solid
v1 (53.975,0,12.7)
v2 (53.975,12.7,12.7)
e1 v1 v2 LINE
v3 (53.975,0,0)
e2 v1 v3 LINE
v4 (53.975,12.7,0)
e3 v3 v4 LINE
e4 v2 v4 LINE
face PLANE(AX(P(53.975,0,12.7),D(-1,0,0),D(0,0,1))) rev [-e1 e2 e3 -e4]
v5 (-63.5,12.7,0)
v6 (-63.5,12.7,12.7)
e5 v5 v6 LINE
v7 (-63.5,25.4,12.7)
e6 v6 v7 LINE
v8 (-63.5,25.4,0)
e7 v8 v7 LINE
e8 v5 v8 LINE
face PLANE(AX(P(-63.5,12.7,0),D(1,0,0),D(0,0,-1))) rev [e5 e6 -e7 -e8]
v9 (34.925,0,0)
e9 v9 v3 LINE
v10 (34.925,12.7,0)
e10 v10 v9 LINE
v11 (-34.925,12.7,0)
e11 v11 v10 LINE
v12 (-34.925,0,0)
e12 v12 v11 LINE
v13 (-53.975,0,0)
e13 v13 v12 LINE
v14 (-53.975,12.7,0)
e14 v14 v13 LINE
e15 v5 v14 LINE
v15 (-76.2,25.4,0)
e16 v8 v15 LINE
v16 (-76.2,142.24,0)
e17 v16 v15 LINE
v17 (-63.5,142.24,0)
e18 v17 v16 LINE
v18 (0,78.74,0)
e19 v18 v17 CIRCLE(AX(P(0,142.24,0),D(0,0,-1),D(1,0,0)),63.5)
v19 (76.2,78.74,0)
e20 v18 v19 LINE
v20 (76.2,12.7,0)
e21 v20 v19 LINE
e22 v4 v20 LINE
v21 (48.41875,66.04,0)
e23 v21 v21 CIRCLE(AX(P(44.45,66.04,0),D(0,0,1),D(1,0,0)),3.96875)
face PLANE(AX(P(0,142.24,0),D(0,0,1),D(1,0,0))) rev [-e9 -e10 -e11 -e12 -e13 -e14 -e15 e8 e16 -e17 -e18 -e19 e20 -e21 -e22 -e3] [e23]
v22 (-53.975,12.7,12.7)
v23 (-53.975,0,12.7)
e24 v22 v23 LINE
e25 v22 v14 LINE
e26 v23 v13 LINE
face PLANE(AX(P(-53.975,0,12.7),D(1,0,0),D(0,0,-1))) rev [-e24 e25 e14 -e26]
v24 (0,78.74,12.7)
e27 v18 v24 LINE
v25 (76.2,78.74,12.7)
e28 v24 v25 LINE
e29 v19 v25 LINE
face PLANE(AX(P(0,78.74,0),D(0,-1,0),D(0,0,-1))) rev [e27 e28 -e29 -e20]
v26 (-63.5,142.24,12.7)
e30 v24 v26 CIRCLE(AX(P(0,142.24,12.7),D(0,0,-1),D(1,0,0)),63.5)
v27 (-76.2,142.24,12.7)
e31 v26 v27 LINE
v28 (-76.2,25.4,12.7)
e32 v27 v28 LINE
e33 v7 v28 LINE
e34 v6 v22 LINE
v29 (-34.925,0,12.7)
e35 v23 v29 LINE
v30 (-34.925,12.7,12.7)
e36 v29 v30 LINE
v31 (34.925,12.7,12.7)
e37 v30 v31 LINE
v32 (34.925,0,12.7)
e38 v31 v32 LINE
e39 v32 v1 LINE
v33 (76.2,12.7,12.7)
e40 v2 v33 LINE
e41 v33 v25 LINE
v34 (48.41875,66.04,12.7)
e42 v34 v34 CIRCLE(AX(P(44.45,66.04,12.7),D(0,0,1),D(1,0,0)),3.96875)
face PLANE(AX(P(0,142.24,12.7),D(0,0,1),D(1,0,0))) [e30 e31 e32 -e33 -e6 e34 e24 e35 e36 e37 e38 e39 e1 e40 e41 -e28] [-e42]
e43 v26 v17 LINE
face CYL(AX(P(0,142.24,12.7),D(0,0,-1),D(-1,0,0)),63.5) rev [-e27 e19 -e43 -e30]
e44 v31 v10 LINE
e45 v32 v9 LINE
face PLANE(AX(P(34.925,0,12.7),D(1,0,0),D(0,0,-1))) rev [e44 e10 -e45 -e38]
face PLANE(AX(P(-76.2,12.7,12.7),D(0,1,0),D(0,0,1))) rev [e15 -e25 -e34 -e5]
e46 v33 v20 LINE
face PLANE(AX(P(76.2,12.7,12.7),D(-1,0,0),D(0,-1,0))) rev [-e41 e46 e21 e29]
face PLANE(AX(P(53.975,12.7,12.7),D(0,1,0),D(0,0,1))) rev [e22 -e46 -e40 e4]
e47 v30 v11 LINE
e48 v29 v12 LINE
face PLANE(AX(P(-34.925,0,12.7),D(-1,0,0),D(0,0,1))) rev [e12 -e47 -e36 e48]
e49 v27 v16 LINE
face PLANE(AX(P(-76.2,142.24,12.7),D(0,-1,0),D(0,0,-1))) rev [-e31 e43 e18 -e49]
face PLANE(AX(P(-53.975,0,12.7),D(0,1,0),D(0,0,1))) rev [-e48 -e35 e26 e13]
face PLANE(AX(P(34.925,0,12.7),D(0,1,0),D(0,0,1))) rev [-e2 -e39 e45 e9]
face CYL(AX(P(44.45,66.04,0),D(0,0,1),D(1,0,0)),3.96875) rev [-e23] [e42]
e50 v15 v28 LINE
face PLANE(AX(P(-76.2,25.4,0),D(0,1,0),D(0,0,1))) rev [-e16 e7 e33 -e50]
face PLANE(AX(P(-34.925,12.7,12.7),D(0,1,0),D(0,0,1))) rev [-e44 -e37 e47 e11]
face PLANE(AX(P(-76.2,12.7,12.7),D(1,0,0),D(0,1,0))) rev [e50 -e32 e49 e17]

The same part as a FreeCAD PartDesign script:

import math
import FreeCAD as App
import Part
import Sketcher
from FreeCAD import Vector
Q = App.Units.Quantity

doc = App.newDocument("Part")
params = doc.addObject("Spreadsheet::Sheet", "Params")
for row, (alias, value) in enumerate([
    ("sketch1_radius", "2.5 in"),
    ("sketch1_width", "0.5 in"),
    ("sketch1_height", "5.1 in"),
    ("sketch1_width2", "0.75 in"),
    ("sketch1_width3", "2.75 in"),
    ("pad1_length", "0.5 in"),
    ("sketch2_diameter", "0.3125 in"),
    ("sketch3_width", "0.5 in"),
], start=1):
    params.set(f"A{row}", alias)
    params.set(f"B{row}", "=" + value)
    params.setAlias(f"B{row}", alias)

body = doc.addObject("PartDesign::Body", "Body")

# Sketch on XY plane
sketch1 = body.newObject("Sketcher::SketchObject", "Sketch")
sketch1.AttachmentSupport = (doc.getObject("XY_Plane"), [""])
sketch1.MapMode = "FlatFace"
sketch1.addGeometry(Part.LineSegment(Vector(-76, 13, 0), Vector(-54, 13, 0)), False)
sketch1.addGeometry(Part.LineSegment(Vector(-54, 13, 0), Vector(-54, 0, 0)), False)
sketch1.addGeometry(Part.LineSegment(Vector(-54, 0, 0), Vector(-35, 0, 0)), False)
sketch1.addGeometry(Part.LineSegment(Vector(-35, 0, 0), Vector(-35, 13, 0)), False)
sketch1.addGeometry(Part.LineSegment(Vector(-35, 13, 0), Vector(35, 13, 0)), False)
sketch1.addGeometry(Part.LineSegment(Vector(35, 13, 0), Vector(35, 0, 0)), False)
sketch1.addGeometry(Part.LineSegment(Vector(35, 0, 0), Vector(54, 0, 0)), False)
sketch1.addGeometry(Part.LineSegment(Vector(54, 0, 0), Vector(54, 13, 0)), False)
sketch1.addGeometry(Part.LineSegment(Vector(54, 13, 0), Vector(76, 13, 0)), False)
sketch1.addGeometry(Part.LineSegment(Vector(76, 13, 0), Vector(76, 142, 0)), False)
sketch1.addGeometry(Part.LineSegment(Vector(76, 142, 0), Vector(64, 142, 0)), False)
sketch1.addGeometry(Part.ArcOfCircle(Part.Circle(Vector(0, 142, 0), Vector(0, 0, 1), 64), math.radians(180), math.radians(360)), False)
sketch1.addGeometry(Part.LineSegment(Vector(-64, 142, 0), Vector(-76, 142, 0)), False)
sketch1.addGeometry(Part.LineSegment(Vector(-76, 142, 0), Vector(-76, 13, 0)), False)
sketch1.addConstraint(Sketcher.Constraint("Coincident", 0, 2, 1, 1))
sketch1.addConstraint(Sketcher.Constraint("Coincident", 1, 2, 2, 1))
sketch1.addConstraint(Sketcher.Constraint("Coincident", 2, 2, 3, 1))
sketch1.addConstraint(Sketcher.Constraint("Coincident", 3, 2, 4, 1))
sketch1.addConstraint(Sketcher.Constraint("Coincident", 4, 2, 5, 1))
sketch1.addConstraint(Sketcher.Constraint("Coincident", 5, 2, 6, 1))
sketch1.addConstraint(Sketcher.Constraint("Coincident", 6, 2, 7, 1))
sketch1.addConstraint(Sketcher.Constraint("Coincident", 7, 2, 8, 1))
sketch1.addConstraint(Sketcher.Constraint("Coincident", 8, 2, 9, 1))
sketch1.addConstraint(Sketcher.Constraint("Coincident", 9, 2, 10, 1))
sketch1.addConstraint(Sketcher.Constraint("Coincident", 10, 2, 11, 2))
sketch1.addConstraint(Sketcher.Constraint("Coincident", 11, 1, 12, 1))
sketch1.addConstraint(Sketcher.Constraint("Coincident", 12, 2, 13, 1))
sketch1.addConstraint(Sketcher.Constraint("Coincident", 13, 2, 0, 1))
sketch1.addConstraint(Sketcher.Constraint("Horizontal", 0))
sketch1.addConstraint(Sketcher.Constraint("Vertical", 1))
sketch1.addConstraint(Sketcher.Constraint("Horizontal", 2))
sketch1.addConstraint(Sketcher.Constraint("Vertical", 3))
sketch1.addConstraint(Sketcher.Constraint("Horizontal", 4))
sketch1.addConstraint(Sketcher.Constraint("Vertical", 5))
sketch1.addConstraint(Sketcher.Constraint("Horizontal", 6))
sketch1.addConstraint(Sketcher.Constraint("Vertical", 7))
sketch1.addConstraint(Sketcher.Constraint("Horizontal", 8))
sketch1.addConstraint(Sketcher.Constraint("Vertical", 9))
sketch1.addConstraint(Sketcher.Constraint("Horizontal", 10))
sketch1.addConstraint(Sketcher.Constraint("Horizontal", 12))
sketch1.addConstraint(Sketcher.Constraint("Vertical", 13))
sketch1.addConstraint(Sketcher.Constraint("Symmetric", 2, 2, 5, 2, -1, 1))
sketch1.addConstraint(Sketcher.Constraint("Symmetric", 1, 2, 6, 2, -2))
sketch1.addConstraint(Sketcher.Constraint("Symmetric", 10, 2, 11, 1, -2))
sketch1.addConstraint(Sketcher.Constraint("Symmetric", 8, 2, 13, 2, -2))
sketch1.addConstraint(Sketcher.Constraint("Horizontal", 0, 2, 3, 2))
sketch1.addConstraint(Sketcher.Constraint("Horizontal", 11, 3, 9, 2))
sketch1.addConstraint(Sketcher.Constraint("Equal", 12, 1))
sketch1.addConstraint(Sketcher.Constraint("Radius", 11, Q("2.5 in")))
sketch1.addConstraint(Sketcher.Constraint("DistanceX", 10, 2, 10, 1, Q("0.5 in")))
sketch1.addConstraint(Sketcher.Constraint("DistanceY", 9, 1, 9, 2, Q("5.1 in")))
sketch1.addConstraint(Sketcher.Constraint("DistanceX", 2, 1, 2, 2, Q("0.75 in")))
sketch1.addConstraint(Sketcher.Constraint("DistanceX", 4, 1, 4, 2, Q("2.75 in")))
sketch1.setExpression("Constraints[34]", "Params.sketch1_radius")
sketch1.setExpression("Constraints[35]", "Params.sketch1_width")
sketch1.setExpression("Constraints[36]", "Params.sketch1_height")
sketch1.setExpression("Constraints[37]", "Params.sketch1_width2")
sketch1.setExpression("Constraints[38]", "Params.sketch1_width3")
pad1 = body.newObject("PartDesign::Pad", "Pad")
pad1.Profile = sketch1
pad1.setExpression("Length", "Params.pad1_length")

# Sketch on XY plane
sketch2 = body.newObject("Sketcher::SketchObject", "Sketch001")
sketch2.AttachmentSupport = (doc.getObject("XY_Plane"), [""])
sketch2.MapMode = "FlatFace"
sketch2.AttachmentOffset = App.Placement(Vector(0, 0, 0.5 * 25.4), App.Rotation())
sketch2.addGeometry(Part.Circle(Vector(44.5, 66, 0), Vector(0, 0, 1), 4), False)
sketch2.addConstraint(Sketcher.Constraint("Diameter", 0, Q("0.3125 in")))
sketch2.addConstraint(Sketcher.Constraint("DistanceY", -1, 1, 0, 3, Q("2.6 in")))
sketch2.addConstraint(Sketcher.Constraint("DistanceX", -1, 1, 0, 3, Q("1.75 in")))
sketch2.setExpression("Constraints[0]", "Params.sketch2_diameter")
pocket1 = body.newObject("PartDesign::Pocket", "Pocket")
pocket1.Profile = sketch2
pocket1.Type = "ThroughAll"

# Sketch on XY plane
sketch3 = body.newObject("Sketcher::SketchObject", "Sketch002")
sketch3.AttachmentSupport = (doc.getObject("XY_Plane"), [""])
sketch3.MapMode = "FlatFace"
sketch3.AttachmentOffset = App.Placement(Vector(0, 0, 0.5 * 25.4), App.Rotation())
sketch3.addGeometry(Part.LineSegment(Vector(-76, 25, 0), Vector(-76, 13, 0)), False)
sketch3.addGeometry(Part.LineSegment(Vector(-76, 13, 0), Vector(-64, 13, 0)), False)
sketch3.addGeometry(Part.LineSegment(Vector(-64, 13, 0), Vector(-64, 25, 0)), False)
sketch3.addGeometry(Part.LineSegment(Vector(-64, 25, 0), Vector(-76, 25, 0)), False)
sketch3.addConstraint(Sketcher.Constraint("Coincident", 0, 2, 1, 1))
sketch3.addConstraint(Sketcher.Constraint("Coincident", 1, 2, 2, 1))
sketch3.addConstraint(Sketcher.Constraint("Coincident", 2, 2, 3, 1))
sketch3.addConstraint(Sketcher.Constraint("Coincident", 3, 2, 0, 1))
sketch3.addConstraint(Sketcher.Constraint("Vertical", 0))
sketch3.addConstraint(Sketcher.Constraint("Horizontal", 1))
sketch3.addConstraint(Sketcher.Constraint("Vertical", 2))
sketch3.addConstraint(Sketcher.Constraint("Horizontal", 3))
sketch3.addConstraint(Sketcher.Constraint("Equal", 3, 0))
sketch3.addConstraint(Sketcher.Constraint("DistanceX", 1, 1, 1, 2, Q("0.5 in")))
sketch3.addConstraint(Sketcher.Constraint("DistanceX", 0, 2, -1, 1, Q("3 in")))
sketch3.addConstraint(Sketcher.Constraint("DistanceY", -1, 1, 2, 2, Q("1 in")))
sketch3.setExpression("Constraints[9]", "Params.sketch3_width")
pocket2 = body.newObject("PartDesign::Pocket", "Pocket001")
pocket2.Profile = sketch3
pocket2.Type = "ThroughAll"

# Sketch on XY plane
sketch4 = body.newObject("Sketcher::SketchObject", "Sketch003")
sketch4.AttachmentSupport = (doc.getObject("XY_Plane"), [""])
sketch4.MapMode = "FlatFace"
sketch4.AttachmentOffset = App.Placement(Vector(0, 0, 0.5 * 25.4), App.Rotation())
sketch4.addGeometry(Part.LineSegment(Vector(0, 154, 0), Vector(0, 79, 0)), False)
sketch4.addGeometry(Part.LineSegment(Vector(0, 79, 0), Vector(106, 79, 0)), False)
sketch4.addGeometry(Part.LineSegment(Vector(106, 79, 0), Vector(106, 154, 0)), False)
sketch4.addGeometry(Part.LineSegment(Vector(106, 154, 0), Vector(0, 154, 0)), False)
sketch4.addConstraint(Sketcher.Constraint("Coincident", 0, 2, 1, 1))
sketch4.addConstraint(Sketcher.Constraint("Coincident", 1, 2, 2, 1))
sketch4.addConstraint(Sketcher.Constraint("Coincident", 2, 2, 3, 1))
sketch4.addConstraint(Sketcher.Constraint("Coincident", 3, 2, 0, 1))
sketch4.addConstraint(Sketcher.Constraint("Vertical", 0))
sketch4.addConstraint(Sketcher.Constraint("Horizontal", 1))
sketch4.addConstraint(Sketcher.Constraint("Vertical", 2))
sketch4.addConstraint(Sketcher.Constraint("Horizontal", 3))
sketch4.addConstraint(Sketcher.Constraint("PointOnObject", 0, 2, -2))
sketch4.addConstraint(Sketcher.Constraint("DistanceY", -1, 1, 0, 2, Q("3.1 in")))
sketch4.addConstraint(Sketcher.Constraint("DistanceX", 1, 1, 1, 2, Q("105.983052 mm")))
sketch4.addConstraint(Sketcher.Constraint("DistanceY", 0, 2, 0, 1, Q("75.202263 mm")))
pocket3 = body.newObject("PartDesign::Pocket", "Pocket002")
pocket3.Profile = sketch4
pocket3.Type = "ThroughAll"

doc.recompute()
